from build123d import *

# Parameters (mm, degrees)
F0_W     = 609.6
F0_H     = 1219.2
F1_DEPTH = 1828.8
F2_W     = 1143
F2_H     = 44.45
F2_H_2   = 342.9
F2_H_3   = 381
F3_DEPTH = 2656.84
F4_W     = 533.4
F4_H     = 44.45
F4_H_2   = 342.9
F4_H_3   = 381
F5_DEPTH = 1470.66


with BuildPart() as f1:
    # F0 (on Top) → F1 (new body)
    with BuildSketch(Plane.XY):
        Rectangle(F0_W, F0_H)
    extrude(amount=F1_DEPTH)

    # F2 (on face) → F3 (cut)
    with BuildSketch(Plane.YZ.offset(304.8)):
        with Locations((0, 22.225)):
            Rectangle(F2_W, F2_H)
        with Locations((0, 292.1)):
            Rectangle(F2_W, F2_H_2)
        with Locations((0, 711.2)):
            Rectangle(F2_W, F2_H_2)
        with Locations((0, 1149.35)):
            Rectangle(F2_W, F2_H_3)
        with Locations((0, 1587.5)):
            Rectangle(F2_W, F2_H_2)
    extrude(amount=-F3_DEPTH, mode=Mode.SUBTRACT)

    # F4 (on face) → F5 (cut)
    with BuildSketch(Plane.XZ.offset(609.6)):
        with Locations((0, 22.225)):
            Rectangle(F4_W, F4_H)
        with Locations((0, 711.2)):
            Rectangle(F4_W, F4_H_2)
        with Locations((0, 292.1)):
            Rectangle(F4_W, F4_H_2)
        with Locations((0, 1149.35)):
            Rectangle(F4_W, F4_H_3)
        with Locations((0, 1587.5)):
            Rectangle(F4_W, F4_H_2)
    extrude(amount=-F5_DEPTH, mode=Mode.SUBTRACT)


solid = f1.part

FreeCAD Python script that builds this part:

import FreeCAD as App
import Part
import Sketcher
from FreeCAD import Vector
Q = App.Units.Quantity

doc = App.newDocument("Part")
params = doc.addObject("Spreadsheet::Sheet", "Params")
for row, (alias, value) in enumerate([
    ("sketch1_width", "24 in"),
    ("sketch1_height", "48 in"),
    ("pad1_length", "72 in"),
    ("sketch2_width", "45 in"),
    ("sketch2_height", "15 in"),
    ("sketch2_height2", "13.5 in"),
    ("sketch2_height3", "1.75 in"),
    ("pocket1_length", "104.6 in"),
    ("sketch3_width", "21 in"),
    ("sketch3_height", "15 in"),
    ("sketch3_height2", "13.5 in"),
    ("sketch3_height3", "1.75 in"),
    ("pocket2_length", "57.9 in"),
], start=1):
    params.set(f"A{row}", alias)
    params.set(f"B{row}", "=" + value)
    params.setAlias(f"B{row}", alias)

body = doc.addObject("PartDesign::Body", "Body")

# Sketch on XY plane
sketch1 = doc.addObject("Sketcher::SketchObject", "Sketch")
body.addObject(sketch1)
sketch1.AttachmentSupport = (doc.XY_Plane, [""])
sketch1.MapMode = "FlatFace"
sketch1.addGeometry([
    Part.LineSegment(Vector(-304.8, 609.6, 0), Vector(-304.8, -609.6, 0)),
    Part.LineSegment(Vector(-304.8, -609.6, 0), Vector(304.8, -609.6, 0)),
    Part.LineSegment(Vector(304.8, -609.6, 0), Vector(304.8, 609.6, 0)),
    Part.LineSegment(Vector(304.8, 609.6, 0), Vector(-304.8, 609.6, 0)),
], False)
sketch1.addConstraint([
    Sketcher.Constraint("Coincident", 0, 2, 1, 1),
    Sketcher.Constraint("Coincident", 1, 2, 2, 1),
    Sketcher.Constraint("Coincident", 2, 2, 3, 1),
    Sketcher.Constraint("Coincident", 3, 2, 0, 1),
    Sketcher.Constraint("Vertical", 0),
    Sketcher.Constraint("Horizontal", 1),
    Sketcher.Constraint("Vertical", 2),
    Sketcher.Constraint("Horizontal", 3),
    Sketcher.Constraint("Symmetric", 0, 2, 2, 2, -1, 1),
    Sketcher.Constraint("DistanceX", 1, 1, 1, 2, Q("24 in")),
    Sketcher.Constraint("DistanceY", 0, 2, 0, 1, Q("48 in")),
])
sketch1.setExpression("Constraints[9]", "Params.sketch1_width")
sketch1.setExpression("Constraints[10]", "Params.sketch1_height")
pad1 = doc.addObject("PartDesign::Pad", "Pad")
body.addObject(pad1)
pad1.Profile = sketch1
pad1.setExpression("Length", "Params.pad1_length")

# Sketch on YZ plane
sketch2 = doc.addObject("Sketcher::SketchObject", "Sketch001")
body.addObject(sketch2)
sketch2.AttachmentSupport = (doc.YZ_Plane, [""])
sketch2.MapMode = "FlatFace"
sketch2.AttachmentOffset = App.Placement(Vector(0, 0, 12 * 25.4), App.Rotation())
sketch2.addGeometry([
    Part.LineSegment(Vector(-571.5, 44.45, 0), Vector(-571.5, 0, 0)),  # 0
    Part.LineSegment(Vector(-571.5, 0, 0), Vector(571.5, 0, 0)),  # 1
    Part.LineSegment(Vector(571.5, 0, 0), Vector(571.5, 44.45, 0)),  # 2
    Part.LineSegment(Vector(571.5, 44.45, 0), Vector(-571.5, 44.45, 0)),  # 3
    Part.LineSegment(Vector(-571.5, 463.55, 0), Vector(-571.5, 120.65, 0)),  # 4
    Part.LineSegment(Vector(-571.5, 120.65, 0), Vector(571.5, 120.65, 0)),  # 5
    Part.LineSegment(Vector(571.5, 120.65, 0), Vector(571.5, 463.55, 0)),  # 6
    Part.LineSegment(Vector(571.5, 463.55, 0), Vector(-571.5, 463.55, 0)),  # 7
    Part.LineSegment(Vector(-571.5, 882.65, 0), Vector(-571.5, 539.75, 0)),  # 8
    Part.LineSegment(Vector(-571.5, 539.75, 0), Vector(571.5, 539.75, 0)),  # 9
    Part.LineSegment(Vector(571.5, 539.75, 0), Vector(571.5, 882.65, 0)),  # 10
    Part.LineSegment(Vector(571.5, 882.65, 0), Vector(-571.5, 882.65, 0)),  # 11
    Part.LineSegment(Vector(-571.5, 1339.85, 0), Vector(-571.5, 958.85, 0)),  # 12
    Part.LineSegment(Vector(-571.5, 958.85, 0), Vector(571.5, 958.85, 0)),  # 13
    Part.LineSegment(Vector(571.5, 958.85, 0), Vector(571.5, 1339.85, 0)),  # 14
    Part.LineSegment(Vector(571.5, 1339.85, 0), Vector(-571.5, 1339.85, 0)),  # 15
    Part.LineSegment(Vector(-571.5, 1758.95, 0), Vector(-571.5, 1416.05, 0)),  # 16
    Part.LineSegment(Vector(-571.5, 1416.05, 0), Vector(571.5, 1416.05, 0)),  # 17
    Part.LineSegment(Vector(571.5, 1416.05, 0), Vector(571.5, 1758.95, 0)),  # 18
    Part.LineSegment(Vector(571.5, 1758.95, 0), Vector(-571.5, 1758.95, 0)),  # 19
], False)
sketch2.addConstraint([
    Sketcher.Constraint("Coincident", 0, 2, 1, 1),
    Sketcher.Constraint("Coincident", 1, 2, 2, 1),
    Sketcher.Constraint("Coincident", 2, 2, 3, 1),
    Sketcher.Constraint("Coincident", 3, 2, 0, 1),
    Sketcher.Constraint("Coincident", 4, 2, 5, 1),
    Sketcher.Constraint("Coincident", 5, 2, 6, 1),
    Sketcher.Constraint("Coincident", 6, 2, 7, 1),
    Sketcher.Constraint("Coincident", 7, 2, 4, 1),
    Sketcher.Constraint("Coincident", 8, 2, 9, 1),
    Sketcher.Constraint("Coincident", 9, 2, 10, 1),
    Sketcher.Constraint("Coincident", 10, 2, 11, 1),
    Sketcher.Constraint("Coincident", 11, 2, 8, 1),
    Sketcher.Constraint("Coincident", 12, 2, 13, 1),
    Sketcher.Constraint("Coincident", 13, 2, 14, 1),
    Sketcher.Constraint("Coincident", 14, 2, 15, 1),
    Sketcher.Constraint("Coincident", 15, 2, 12, 1),
    Sketcher.Constraint("Coincident", 16, 2, 17, 1),
    Sketcher.Constraint("Coincident", 17, 2, 18, 1),
    Sketcher.Constraint("Coincident", 18, 2, 19, 1),
    Sketcher.Constraint("Coincident", 19, 2, 16, 1),
    Sketcher.Constraint("Vertical", 0),
    Sketcher.Constraint("Horizontal", 1),
    Sketcher.Constraint("Vertical", 2),
    Sketcher.Constraint("Horizontal", 3),
    Sketcher.Constraint("Vertical", 4),
    Sketcher.Constraint("Horizontal", 5),
    Sketcher.Constraint("Vertical", 6),
    Sketcher.Constraint("Horizontal", 7),
    Sketcher.Constraint("Vertical", 8),
    Sketcher.Constraint("Horizontal", 9),
    Sketcher.Constraint("Vertical", 10),
    Sketcher.Constraint("Horizontal", 11),
    Sketcher.Constraint("Vertical", 12),
    Sketcher.Constraint("Horizontal", 13),
    Sketcher.Constraint("Vertical", 14),
    Sketcher.Constraint("Horizontal", 15),
    Sketcher.Constraint("Vertical", 16),
    Sketcher.Constraint("Horizontal", 17),
    Sketcher.Constraint("Vertical", 18),
    Sketcher.Constraint("Horizontal", 19),
    Sketcher.Constraint("Symmetric", 0, 2, 1, 2, -1, 1),
    Sketcher.Constraint("Vertical", 3, 2, 4, 2),
    Sketcher.Constraint("Vertical", 2, 2, 5, 2),
    Sketcher.Constraint("Vertical", 7, 2, 8, 2),
    Sketcher.Constraint("Vertical", 6, 2, 9, 2),
    Sketcher.Constraint("Vertical", 11, 2, 12, 2),
    Sketcher.Constraint("Vertical", 10, 2, 13, 2),
    Sketcher.Constraint("Vertical", 15, 2, 16, 2),
    Sketcher.Constraint("Vertical", 14, 2, 17, 2),
    Sketcher.Constraint("Equal", 6, 8),
    Sketcher.Constraint("Equal", 10, 16),
    Sketcher.Constraint("DistanceX", 1, 1, 1, 2, Q("45 in")),
    Sketcher.Constraint("DistanceY", 12, 2, 12, 1, Q("15 in")),
    Sketcher.Constraint("DistanceY", 4, 2, 4, 1, Q("13.5 in")),
    Sketcher.Constraint("DistanceY", 3, 2, 4, 2, Q("3 in")),
    Sketcher.Constraint("DistanceY", 7, 2, 8, 2, Q("3 in")),
    Sketcher.Constraint("DistanceY", 11, 2, 12, 2, Q("3 in")),
    Sketcher.Constraint("DistanceY", 15, 2, 16, 2, Q("3 in")),
    Sketcher.Constraint("DistanceY", 0, 2, 0, 1, Q("1.75 in")),
])
sketch2.setExpression("Constraints[51]", "Params.sketch2_width")
sketch2.setExpression("Constraints[52]", "Params.sketch2_height")
sketch2.setExpression("Constraints[53]", "Params.sketch2_height2")
sketch2.setExpression("Constraints[58]", "Params.sketch2_height3")
pocket1 = doc.addObject("PartDesign::Pocket", "Pocket")
body.addObject(pocket1)
pocket1.Profile = sketch2
pocket1.setExpression("Length", "Params.pocket1_length")

# Sketch on XZ plane
sketch3 = doc.addObject("Sketcher::SketchObject", "Sketch002")
body.addObject(sketch3)
sketch3.AttachmentSupport = (doc.XZ_Plane, [""])
sketch3.MapMode = "FlatFace"
sketch3.AttachmentOffset = App.Placement(Vector(0, 0, 24 * 25.4), App.Rotation())
sketch3.addGeometry([
    Part.LineSegment(Vector(-266.7, 44.45, 0), Vector(-266.7, 0, 0)),  # 0
    Part.LineSegment(Vector(-266.7, 0, 0), Vector(266.7, 0, 0)),  # 1
    Part.LineSegment(Vector(266.7, 0, 0), Vector(266.7, 44.45, 0)),  # 2
    Part.LineSegment(Vector(266.7, 44.45, 0), Vector(-266.7, 44.45, 0)),  # 3
    Part.LineSegment(Vector(-266.7, 882.65, 0), Vector(-266.7, 539.75, 0)),  # 4
    Part.LineSegment(Vector(-266.7, 539.75, 0), Vector(266.7, 539.75, 0)),  # 5
    Part.LineSegment(Vector(266.7, 539.75, 0), Vector(266.7, 882.65, 0)),  # 6
    Part.LineSegment(Vector(266.7, 882.65, 0), Vector(-266.7, 882.65, 0)),  # 7
    Part.LineSegment(Vector(-266.7, 463.55, 0), Vector(-266.7, 120.65, 0)),  # 8
    Part.LineSegment(Vector(-266.7, 120.65, 0), Vector(266.7, 120.65, 0)),  # 9
    Part.LineSegment(Vector(266.7, 120.65, 0), Vector(266.7, 463.55, 0)),  # 10
    Part.LineSegment(Vector(266.7, 463.55, 0), Vector(-266.7, 463.55, 0)),  # 11
    Part.LineSegment(Vector(-266.7, 1339.85, 0), Vector(-266.7, 958.85, 0)),  # 12
    Part.LineSegment(Vector(-266.7, 958.85, 0), Vector(266.7, 958.85, 0)),  # 13
    Part.LineSegment(Vector(266.7, 958.85, 0), Vector(266.7, 1339.85, 0)),  # 14
    Part.LineSegment(Vector(266.7, 1339.85, 0), Vector(-266.7, 1339.85, 0)),  # 15
    Part.LineSegment(Vector(-266.7, 1758.95, 0), Vector(-266.7, 1416.05, 0)),  # 16
    Part.LineSegment(Vector(-266.7, 1416.05, 0), Vector(266.7, 1416.05, 0)),  # 17
    Part.LineSegment(Vector(266.7, 1416.05, 0), Vector(266.7, 1758.95, 0)),  # 18
    Part.LineSegment(Vector(266.7, 1758.95, 0), Vector(-266.7, 1758.95, 0)),  # 19
], False)
sketch3.addConstraint([
    Sketcher.Constraint("Coincident", 0, 2, 1, 1),
    Sketcher.Constraint("Coincident", 1, 2, 2, 1),
    Sketcher.Constraint("Coincident", 2, 2, 3, 1),
    Sketcher.Constraint("Coincident", 3, 2, 0, 1),
    Sketcher.Constraint("Coincident", 4, 2, 5, 1),
    Sketcher.Constraint("Coincident", 5, 2, 6, 1),
    Sketcher.Constraint("Coincident", 6, 2, 7, 1),
    Sketcher.Constraint("Coincident", 7, 2, 4, 1),
    Sketcher.Constraint("Coincident", 8, 2, 9, 1),
    Sketcher.Constraint("Coincident", 9, 2, 10, 1),
    Sketcher.Constraint("Coincident", 10, 2, 11, 1),
    Sketcher.Constraint("Coincident", 11, 2, 8, 1),
    Sketcher.Constraint("Coincident", 12, 2, 13, 1),
    Sketcher.Constraint("Coincident", 13, 2, 14, 1),
    Sketcher.Constraint("Coincident", 14, 2, 15, 1),
    Sketcher.Constraint("Coincident", 15, 2, 12, 1),
    Sketcher.Constraint("Coincident", 16, 2, 17, 1),
    Sketcher.Constraint("Coincident", 17, 2, 18, 1),
    Sketcher.Constraint("Coincident", 18, 2, 19, 1),
    Sketcher.Constraint("Coincident", 19, 2, 16, 1),
    Sketcher.Constraint("Vertical", 0),
    Sketcher.Constraint("Horizontal", 1),
    Sketcher.Constraint("Vertical", 2),
    Sketcher.Constraint("Horizontal", 3),
    Sketcher.Constraint("Vertical", 4),
    Sketcher.Constraint("Horizontal", 5),
    Sketcher.Constraint("Vertical", 6),
    Sketcher.Constraint("Horizontal", 7),
    Sketcher.Constraint("Vertical", 8),
    Sketcher.Constraint("Horizontal", 9),
    Sketcher.Constraint("Vertical", 10),
    Sketcher.Constraint("Horizontal", 11),
    Sketcher.Constraint("Vertical", 12),
    Sketcher.Constraint("Horizontal", 13),
    Sketcher.Constraint("Vertical", 14),
    Sketcher.Constraint("Horizontal", 15),
    Sketcher.Constraint("Vertical", 16),
    Sketcher.Constraint("Horizontal", 17),
    Sketcher.Constraint("Vertical", 18),
    Sketcher.Constraint("Horizontal", 19),
    Sketcher.Constraint("Symmetric", 0, 2, 1, 2, -1, 1),
    Sketcher.Constraint("Vertical", 3, 2, 4, 2),
    Sketcher.Constraint("Vertical", 2, 2, 5, 2),
    Sketcher.Constraint("Vertical", 7, 2, 8, 2),
    Sketcher.Constraint("Vertical", 6, 2, 9, 2),
    Sketcher.Constraint("Vertical", 11, 2, 12, 2),
    Sketcher.Constraint("Vertical", 10, 2, 13, 2),
    Sketcher.Constraint("Vertical", 15, 2, 16, 2),
    Sketcher.Constraint("Vertical", 14, 2, 17, 2),
    Sketcher.Constraint("Equal", 6, 8),
    Sketcher.Constraint("Equal", 10, 16),
    Sketcher.Constraint("DistanceX", 1, 1, 1, 2, Q("21 in")),
    Sketcher.Constraint("DistanceY", 12, 2, 12, 1, Q("15 in")),
    Sketcher.Constraint("DistanceY", 4, 2, 4, 1, Q("13.5 in")),
    Sketcher.Constraint("DistanceY", 2, 2, 6, 2, Q("33 in")),
    Sketcher.Constraint("DistanceY", 3, 2, 8, 2, Q("3 in")),
    Sketcher.Constraint("DistanceY", 7, 2, 12, 2, Q("3 in")),
    Sketcher.Constraint("DistanceY", 15, 2, 16, 2, Q("3 in")),
    Sketcher.Constraint("DistanceY", 0, 2, 0, 1, Q("1.75 in")),
])
sketch3.setExpression("Constraints[51]", "Params.sketch3_width")
sketch3.setExpression("Constraints[52]", "Params.sketch3_height")
sketch3.setExpression("Constraints[53]", "Params.sketch3_height2")
sketch3.setExpression("Constraints[58]", "Params.sketch3_height3")
pocket2 = doc.addObject("PartDesign::Pocket", "Pocket001")
body.addObject(pocket2)
pocket2.Profile = sketch3
pocket2.setExpression("Length", "Params.pocket2_length")

doc.recompute()
